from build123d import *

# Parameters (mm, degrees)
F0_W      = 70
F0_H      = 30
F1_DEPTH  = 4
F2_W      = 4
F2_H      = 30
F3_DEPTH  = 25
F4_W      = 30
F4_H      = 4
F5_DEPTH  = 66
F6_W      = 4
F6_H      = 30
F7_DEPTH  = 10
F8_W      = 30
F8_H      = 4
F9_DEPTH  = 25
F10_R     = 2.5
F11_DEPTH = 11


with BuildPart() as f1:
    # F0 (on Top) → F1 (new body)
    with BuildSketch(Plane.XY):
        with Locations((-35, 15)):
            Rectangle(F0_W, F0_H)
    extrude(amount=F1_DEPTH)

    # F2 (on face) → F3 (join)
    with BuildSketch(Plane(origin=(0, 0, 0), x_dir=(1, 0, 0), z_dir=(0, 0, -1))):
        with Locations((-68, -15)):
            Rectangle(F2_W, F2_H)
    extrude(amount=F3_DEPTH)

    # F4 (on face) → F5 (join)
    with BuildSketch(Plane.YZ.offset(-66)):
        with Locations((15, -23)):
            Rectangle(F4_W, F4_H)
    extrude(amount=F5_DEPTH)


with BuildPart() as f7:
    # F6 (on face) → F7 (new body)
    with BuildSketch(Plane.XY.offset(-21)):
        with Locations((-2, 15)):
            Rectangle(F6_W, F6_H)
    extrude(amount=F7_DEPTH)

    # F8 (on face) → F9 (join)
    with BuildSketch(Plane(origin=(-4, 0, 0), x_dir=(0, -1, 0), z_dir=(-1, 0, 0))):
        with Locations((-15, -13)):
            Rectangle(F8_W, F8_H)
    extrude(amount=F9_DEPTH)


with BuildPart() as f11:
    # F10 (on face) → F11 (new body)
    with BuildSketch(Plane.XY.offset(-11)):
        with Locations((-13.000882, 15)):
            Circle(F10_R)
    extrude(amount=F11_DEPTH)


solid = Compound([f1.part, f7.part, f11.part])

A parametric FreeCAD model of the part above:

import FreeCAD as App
import Part
import Sketcher

V = App.Vector


def add_polygon(sketch, points):
    """Adds a closed chain of lines whose ends are joined by coincident constraints."""
    first, n = sketch.GeometryCount, len(points)
    for a, b in zip(points, points[1:] + points[:1]):
        sketch.addGeometry(Part.LineSegment(App.Vector(*a, 0), App.Vector(*b, 0)), False)
    for i in range(n):
        sketch.addConstraint(Sketcher.Constraint("Coincident", first + i, 2, first + (i + 1) % n, 1))

doc = App.newDocument("Part")
body = doc.addObject("PartDesign::Body", "Body")

sketch1 = body.newObject("Sketcher::SketchObject", "Sketch")
sketch1.AttachmentSupport = (doc.getObject("XY_Plane"), [""])
sketch1.MapMode = "FlatFace"
add_polygon(sketch1, [(-70, 30), (-70, 0), (0, 0), (0, 30)])
sketch1.addConstraint(Sketcher.Constraint("Vertical", 0))
sketch1.addConstraint(Sketcher.Constraint("Horizontal", 1))
sketch1.addConstraint(Sketcher.Constraint("Vertical", 2))
sketch1.addConstraint(Sketcher.Constraint("Horizontal", 3))
sketch1.addConstraint(Sketcher.Constraint("Coincident", 1, 2, -1, 1))
sketch1.addConstraint(Sketcher.Constraint("DistanceX", 1, 1, 1, 2, 70.0))
sketch1.addConstraint(Sketcher.Constraint("DistanceY", 0, 2, 0, 1, 30.0))
pad1 = body.newObject("PartDesign::Pad", "Pad")
pad1.Profile = sketch1
pad1.Length = 4

sketch2 = body.newObject("Sketcher::SketchObject", "Sketch001")
sketch2.AttachmentSupport = (doc.getObject("XY_Plane"), [""])
sketch2.MapMode = "FlatFace"
add_polygon(sketch2, [(-70, 0), (-70, 30), (-66, 30), (-66, 0)])
sketch2.addConstraint(Sketcher.Constraint("Vertical", 0))
sketch2.addConstraint(Sketcher.Constraint("Horizontal", 1))
sketch2.addConstraint(Sketcher.Constraint("Vertical", 2))
sketch2.addConstraint(Sketcher.Constraint("Horizontal", 3))
sketch2.addConstraint(Sketcher.Constraint("PointOnObject", 2, 2, -1))
sketch2.addConstraint(Sketcher.Constraint("DistanceX", 1, 1, 1, 2, 4.0))
sketch2.addConstraint(Sketcher.Constraint("DistanceY", 0, 1, 0, 2, 30.0))
sketch2.addConstraint(Sketcher.Constraint("DistanceX", 0, 2, -1, 1, 70.0))
pad2 = body.newObject("PartDesign::Pad", "Pad001")
pad2.Profile = sketch2
pad2.Length = 25
pad2.Reversed = True

sketch3 = body.newObject("Sketcher::SketchObject", "Sketch002")
sketch3.AttachmentSupport = (doc.getObject("YZ_Plane"), [""])
sketch3.MapMode = "FlatFace"
sketch3.AttachmentOffset = App.Placement(V(0, 0, -66), App.Rotation())
add_polygon(sketch3, [(0, -21), (0, -25), (30, -25), (30, -21)])
sketch3.addConstraint(Sketcher.Constraint("Vertical", 0))
sketch3.addConstraint(Sketcher.Constraint("Horizontal", 1))
sketch3.addConstraint(Sketcher.Constraint("Vertical", 2))
sketch3.addConstraint(Sketcher.Constraint("Horizontal", 3))
sketch3.addConstraint(Sketcher.Constraint("PointOnObject", 0, 2, -2))
sketch3.addConstraint(Sketcher.Constraint("DistanceX", 1, 1, 1, 2, 30.0))
sketch3.addConstraint(Sketcher.Constraint("DistanceY", 0, 2, 0, 1, 4.0))
sketch3.addConstraint(Sketcher.Constraint("DistanceY", 0, 2, -1, 1, 25.0))
pad3 = body.newObject("PartDesign::Pad", "Pad002")
pad3.Profile = sketch3
pad3.Length = 66
body2 = doc.addObject("PartDesign::Body", "Body001")

sketch4 = body2.newObject("Sketcher::SketchObject", "Sketch003")
sketch4.AttachmentSupport = (doc.getObject("XY_Plane001"), [""])
sketch4.MapMode = "FlatFace"
sketch4.AttachmentOffset = App.Placement(V(0, 0, -21), App.Rotation())
add_polygon(sketch4, [(-4, 30), (-4, 0), (0, 0), (0, 30)])
sketch4.addConstraint(Sketcher.Constraint("Vertical", 0))
sketch4.addConstraint(Sketcher.Constraint("Horizontal", 1))
sketch4.addConstraint(Sketcher.Constraint("Vertical", 2))
sketch4.addConstraint(Sketcher.Constraint("Horizontal", 3))
sketch4.addConstraint(Sketcher.Constraint("Coincident", 1, 2, -1, 1))
sketch4.addConstraint(Sketcher.Constraint("DistanceX", 1, 1, 1, 2, 4.0))
sketch4.addConstraint(Sketcher.Constraint("DistanceY", 0, 2, 0, 1, 30.0))
pad4 = body2.newObject("PartDesign::Pad", "Pad003")
pad4.Profile = sketch4
pad4.Length = 10

sketch5 = body2.newObject("Sketcher::SketchObject", "Sketch004")
sketch5.AttachmentSupport = (doc.getObject("YZ_Plane001"), [""])
sketch5.MapMode = "FlatFace"
sketch5.AttachmentOffset = App.Placement(V(0, 0, -4), App.Rotation())
add_polygon(sketch5, [(30, -11), (30, -15), (0, -15), (0, -11)])
sketch5.addConstraint(Sketcher.Constraint("Vertical", 0))
sketch5.addConstraint(Sketcher.Constraint("Horizontal", 1))
sketch5.addConstraint(Sketcher.Constraint("Vertical", 2))
sketch5.addConstraint(Sketcher.Constraint("Horizontal", 3))
sketch5.addConstraint(Sketcher.Constraint("PointOnObject", 1, 2, -2))
sketch5.addConstraint(Sketcher.Constraint("DistanceX", 1, 2, 1, 1, 30.0))
sketch5.addConstraint(Sketcher.Constraint("DistanceY", 0, 2, 0, 1, 4.0))
sketch5.addConstraint(Sketcher.Constraint("DistanceY", 0, 2, -1, 1, 15.0))
pad5 = body2.newObject("PartDesign::Pad", "Pad004")
pad5.Profile = sketch5
pad5.Length = 25
pad5.Reversed = True
body3 = doc.addObject("PartDesign::Body", "Body002")

sketch6 = body3.newObject("Sketcher::SketchObject", "Sketch005")
sketch6.AttachmentSupport = (doc.getObject("XY_Plane002"), [""])
sketch6.MapMode = "FlatFace"
sketch6.AttachmentOffset = App.Placement(V(0, 0, -11), App.Rotation())
sketch6.addGeometry(Part.Circle(V(-13, 15, 0), V(0, 0, 1), 2.5), False)
sketch6.addConstraint(Sketcher.Constraint("Diameter", 0, 5.0))
sketch6.addConstraint(Sketcher.Constraint("DistanceY", -1, 1, 0, 3, 15.0))
sketch6.addConstraint(Sketcher.Constraint("DistanceX", 0, 3, -1, 1, 13.000882))
pad6 = body3.newObject("PartDesign::Pad", "Pad005")
pad6.Profile = sketch6
pad6.Length = 11

doc.recompute()
